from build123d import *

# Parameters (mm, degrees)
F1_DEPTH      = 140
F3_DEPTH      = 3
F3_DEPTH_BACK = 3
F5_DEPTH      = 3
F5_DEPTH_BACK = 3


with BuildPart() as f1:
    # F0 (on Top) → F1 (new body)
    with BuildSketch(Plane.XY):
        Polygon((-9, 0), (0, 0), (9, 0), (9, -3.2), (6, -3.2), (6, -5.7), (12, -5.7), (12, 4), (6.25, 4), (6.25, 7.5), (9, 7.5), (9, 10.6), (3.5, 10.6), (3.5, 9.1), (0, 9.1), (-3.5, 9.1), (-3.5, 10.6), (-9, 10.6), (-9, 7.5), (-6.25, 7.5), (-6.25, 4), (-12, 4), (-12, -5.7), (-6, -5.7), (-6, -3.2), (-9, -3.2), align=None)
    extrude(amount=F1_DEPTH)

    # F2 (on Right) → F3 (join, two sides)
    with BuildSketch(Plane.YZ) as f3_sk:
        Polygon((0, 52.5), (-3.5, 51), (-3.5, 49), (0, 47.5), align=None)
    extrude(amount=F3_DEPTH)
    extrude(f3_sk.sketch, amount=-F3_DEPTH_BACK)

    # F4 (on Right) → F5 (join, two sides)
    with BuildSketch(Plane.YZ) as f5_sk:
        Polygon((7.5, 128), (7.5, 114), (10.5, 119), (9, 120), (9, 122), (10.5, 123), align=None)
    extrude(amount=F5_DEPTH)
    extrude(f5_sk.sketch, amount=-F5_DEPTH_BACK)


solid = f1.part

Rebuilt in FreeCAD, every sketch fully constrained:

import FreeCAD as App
import Part
import Sketcher

V = App.Vector

doc = App.newDocument("Part")
body = doc.addObject("PartDesign::Body", "Body")

# Sketch on XY plane
sketch1 = body.newObject("Sketcher::SketchObject", "Sketch")
sketch1.AttachmentSupport = (doc.getObject("XY_Plane"), [""])
sketch1.MapMode = "FlatFace"
sketch1.addGeometry(Part.LineSegment(V(-9, 0, 0), V(9, 0, 0)), False)
sketch1.addGeometry(Part.LineSegment(V(9, 0, 0), V(9, -3.2, 0)), False)
sketch1.addGeometry(Part.LineSegment(V(9, -3.2, 0), V(6, -3.2, 0)), False)
sketch1.addGeometry(Part.LineSegment(V(6, -3.2, 0), V(6, -5.7, 0)), False)
sketch1.addGeometry(Part.LineSegment(V(6, -5.7, 0), V(12, -5.7, 0)), False)
sketch1.addGeometry(Part.LineSegment(V(12, -5.7, 0), V(12, 4, 0)), False)
sketch1.addGeometry(Part.LineSegment(V(12, 4, 0), V(6.2, 4, 0)), False)
sketch1.addGeometry(Part.LineSegment(V(6.2, 4, 0), V(6.2, 7.5, 0)), False)
sketch1.addGeometry(Part.LineSegment(V(6.2, 7.5, 0), V(9, 7.5, 0)), False)
sketch1.addGeometry(Part.LineSegment(V(9, 7.5, 0), V(9, 10.6, 0)), False)
sketch1.addGeometry(Part.LineSegment(V(9, 10.6, 0), V(3.5, 10.6, 0)), False)
sketch1.addGeometry(Part.LineSegment(V(3.5, 10.6, 0), V(3.5, 9.1, 0)), False)
sketch1.addGeometry(Part.LineSegment(V(3.5, 9.1, 0), V(-3.5, 9.1, 0)), False)
sketch1.addGeometry(Part.LineSegment(V(-3.5, 9.1, 0), V(-3.5, 10.6, 0)), False)
sketch1.addGeometry(Part.LineSegment(V(-3.5, 10.6, 0), V(-9, 10.6, 0)), False)
sketch1.addGeometry(Part.LineSegment(V(-9, 10.6, 0), V(-9, 7.5, 0)), False)
sketch1.addGeometry(Part.LineSegment(V(-9, 7.5, 0), V(-6.2, 7.5, 0)), False)
sketch1.addGeometry(Part.LineSegment(V(-6.2, 7.5, 0), V(-6.2, 4, 0)), False)
sketch1.addGeometry(Part.LineSegment(V(-6.2, 4, 0), V(-12, 4, 0)), False)
sketch1.addGeometry(Part.LineSegment(V(-12, 4, 0), V(-12, -5.7, 0)), False)
sketch1.addGeometry(Part.LineSegment(V(-12, -5.7, 0), V(-6, -5.7, 0)), False)
sketch1.addGeometry(Part.LineSegment(V(-6, -5.7, 0), V(-6, -3.2, 0)), False)
sketch1.addGeometry(Part.LineSegment(V(-6, -3.2, 0), V(-9, -3.2, 0)), False)
sketch1.addGeometry(Part.LineSegment(V(-9, -3.2, 0), V(-9, 0, 0)), False)
sketch1.addConstraint(Sketcher.Constraint("Coincident", 0, 2, 1, 1))
sketch1.addConstraint(Sketcher.Constraint("Coincident", 1, 2, 2, 1))
sketch1.addConstraint(Sketcher.Constraint("Coincident", 2, 2, 3, 1))
sketch1.addConstraint(Sketcher.Constraint("Coincident", 3, 2, 4, 1))
sketch1.addConstraint(Sketcher.Constraint("Coincident", 4, 2, 5, 1))
sketch1.addConstraint(Sketcher.Constraint("Coincident", 5, 2, 6, 1))
sketch1.addConstraint(Sketcher.Constraint("Coincident", 6, 2, 7, 1))
sketch1.addConstraint(Sketcher.Constraint("Coincident", 7, 2, 8, 1))
sketch1.addConstraint(Sketcher.Constraint("Coincident", 8, 2, 9, 1))
sketch1.addConstraint(Sketcher.Constraint("Coincident", 9, 2, 10, 1))
sketch1.addConstraint(Sketcher.Constraint("Coincident", 10, 2, 11, 1))
sketch1.addConstraint(Sketcher.Constraint("Coincident", 11, 2, 12, 1))
sketch1.addConstraint(Sketcher.Constraint("Coincident", 12, 2, 13, 1))
sketch1.addConstraint(Sketcher.Constraint("Coincident", 13, 2, 14, 1))
sketch1.addConstraint(Sketcher.Constraint("Coincident", 14, 2, 15, 1))
sketch1.addConstraint(Sketcher.Constraint("Coincident", 15, 2, 16, 1))
sketch1.addConstraint(Sketcher.Constraint("Coincident", 16, 2, 17, 1))
sketch1.addConstraint(Sketcher.Constraint("Coincident", 17, 2, 18, 1))
sketch1.addConstraint(Sketcher.Constraint("Coincident", 18, 2, 19, 1))
sketch1.addConstraint(Sketcher.Constraint("Coincident", 19, 2, 20, 1))
sketch1.addConstraint(Sketcher.Constraint("Coincident", 20, 2, 21, 1))
sketch1.addConstraint(Sketcher.Constraint("Coincident", 21, 2, 22, 1))
sketch1.addConstraint(Sketcher.Constraint("Coincident", 22, 2, 23, 1))
sketch1.addConstraint(Sketcher.Constraint("Coincident", 23, 2, 0, 1))
sketch1.addConstraint(Sketcher.Constraint("Horizontal", 0))
sketch1.addConstraint(Sketcher.Constraint("Vertical", 1))
sketch1.addConstraint(Sketcher.Constraint("Horizontal", 2))
sketch1.addConstraint(Sketcher.Constraint("Vertical", 3))
sketch1.addConstraint(Sketcher.Constraint("Horizontal", 4))
sketch1.addConstraint(Sketcher.Constraint("Vertical", 5))
sketch1.addConstraint(Sketcher.Constraint("Horizontal", 6))
sketch1.addConstraint(Sketcher.Constraint("Vertical", 7))
sketch1.addConstraint(Sketcher.Constraint("Horizontal", 8))
sketch1.addConstraint(Sketcher.Constraint("Vertical", 9))
sketch1.addConstraint(Sketcher.Constraint("Horizontal", 10))
sketch1.addConstraint(Sketcher.Constraint("Vertical", 11))
sketch1.addConstraint(Sketcher.Constraint("Horizontal", 12))
sketch1.addConstraint(Sketcher.Constraint("Vertical", 13))
sketch1.addConstraint(Sketcher.Constraint("Horizontal", 14))
sketch1.addConstraint(Sketcher.Constraint("Vertical", 15))
sketch1.addConstraint(Sketcher.Constraint("Horizontal", 16))
sketch1.addConstraint(Sketcher.Constraint("Vertical", 17))
sketch1.addConstraint(Sketcher.Constraint("Horizontal", 18))
sketch1.addConstraint(Sketcher.Constraint("Vertical", 19))
sketch1.addConstraint(Sketcher.Constraint("Horizontal", 20))
sketch1.addConstraint(Sketcher.Constraint("Vertical", 21))
sketch1.addConstraint(Sketcher.Constraint("Horizontal", 22))
sketch1.addConstraint(Sketcher.Constraint("Vertical", 23))
sketch1.addConstraint(Sketcher.Constraint("Symmetric", 0, 2, 23, 2, -1, 1))
sketch1.addConstraint(Sketcher.Constraint("Symmetric", 10, 2, 13, 2, -2))
sketch1.addConstraint(Sketcher.Constraint("Symmetric", 8, 2, 15, 2, -2))
sketch1.addConstraint(Sketcher.Constraint("Symmetric", 6, 2, 17, 2, -2))
sketch1.addConstraint(Sketcher.Constraint("Symmetric", 4, 2, 19, 2, -2))
sketch1.addConstraint(Sketcher.Constraint("Symmetric", 2, 2, 21, 2, -2))
sketch1.addConstraint(Sketcher.Constraint("Vertical", 1, 2, 8, 2))
sketch1.addConstraint(Sketcher.Constraint("DistanceX", 0, 1, 0, 2, 18.0))
sketch1.addConstraint(Sketcher.Constraint("DistanceX", 2, 2, 2, 1, 3.0))
sketch1.addConstraint(Sketcher.Constraint("DistanceX", 4, 1, 4, 2, 6.0))
sketch1.addConstraint(Sketcher.Constraint("DistanceX", 12, 2, 12, 1, 7.0))
sketch1.addConstraint(Sketcher.Constraint("DistanceY", 1, 2, 1, 1, 3.2))
sketch1.addConstraint(Sketcher.Constraint("DistanceY", 3, 2, 3, 1, 2.5))
sketch1.addConstraint(Sketcher.Constraint("DistanceY", 5, 1, 5, 2, 9.7))
sketch1.addConstraint(Sketcher.Constraint("DistanceY", 7, 1, 7, 2, 3.5))
sketch1.addConstraint(Sketcher.Constraint("DistanceY", 9, 1, 9, 2, 3.1))
sketch1.addConstraint(Sketcher.Constraint("DistanceY", 11, 2, 11, 1, 1.5))
sketch1.addConstraint(Sketcher.Constraint("DistanceX", 6, 2, 6, 1, 5.75))
pad1 = body.newObject("PartDesign::Pad", "Pad")
pad1.Profile = sketch1
pad1.Length = 140

# Sketch on YZ plane
sketch2 = body.newObject("Sketcher::SketchObject", "Sketch001")
sketch2.AttachmentSupport = (doc.getObject("YZ_Plane"), [""])
sketch2.MapMode = "FlatFace"
sketch2.addGeometry(Part.LineSegment(V(0, 52.5, 0), V(-3.5, 51, 0)), False)
sketch2.addGeometry(Part.LineSegment(V(-3.5, 51, 0), V(-3.5, 49, 0)), False)
sketch2.addGeometry(Part.LineSegment(V(-3.5, 49, 0), V(0, 47.5, 0)), False)
sketch2.addGeometry(Part.LineSegment(V(0, 47.5, 0), V(0, 52.5, 0)), False)
sketch2.addConstraint(Sketcher.Constraint("Coincident", 0, 2, 1, 1))
sketch2.addConstraint(Sketcher.Constraint("Coincident", 1, 2, 2, 1))
sketch2.addConstraint(Sketcher.Constraint("Coincident", 2, 2, 3, 1))
sketch2.addConstraint(Sketcher.Constraint("Coincident", 3, 2, 0, 1))
sketch2.addConstraint(Sketcher.Constraint("Vertical", 1))
sketch2.addConstraint(Sketcher.Constraint("Vertical", 3))
sketch2.addConstraint(Sketcher.Constraint("PointOnObject", 2, 2, -2))
sketch2.addConstraint(Sketcher.Constraint("Equal", 0, 2))
sketch2.addConstraint(Sketcher.Constraint("DistanceY", 1, 2, 1, 1, 2.0))
sketch2.addConstraint(Sketcher.Constraint("DistanceY", 3, 1, 3, 2, 5.0))
sketch2.addConstraint(Sketcher.Constraint("DistanceY", -1, 1, 0, 2, 51.0))
sketch2.addConstraint(Sketcher.Constraint("DistanceX", 0, 2, -1, 1, 3.5))
pad2 = body.newObject("PartDesign::Pad", "Pad001")
pad2.Profile = sketch2
pad2.Type = "TwoLengths"
pad2.Length = 3
pad2.Length2 = 3

# Sketch on YZ plane
sketch3 = body.newObject("Sketcher::SketchObject", "Sketch002")
sketch3.AttachmentSupport = (doc.getObject("YZ_Plane"), [""])
sketch3.MapMode = "FlatFace"
sketch3.addGeometry(Part.LineSegment(V(7.5, 128, 0), V(7.5, 114, 0)), False)
sketch3.addGeometry(Part.LineSegment(V(7.5, 114, 0), V(10.5, 119, 0)), False)
sketch3.addGeometry(Part.LineSegment(V(10.5, 119, 0), V(9, 120, 0)), False)
sketch3.addGeometry(Part.LineSegment(V(9, 120, 0), V(9, 122, 0)), False)
sketch3.addGeometry(Part.LineSegment(V(9, 122, 0), V(10.5, 123, 0)), False)
sketch3.addGeometry(Part.LineSegment(V(10.5, 123, 0), V(7.5, 128, 0)), False)
sketch3.addConstraint(Sketcher.Constraint("Coincident", 0, 2, 1, 1))
sketch3.addConstraint(Sketcher.Constraint("Coincident", 1, 2, 2, 1))
sketch3.addConstraint(Sketcher.Constraint("Coincident", 2, 2, 3, 1))
sketch3.addConstraint(Sketcher.Constraint("Coincident", 3, 2, 4, 1))
sketch3.addConstraint(Sketcher.Constraint("Coincident", 4, 2, 5, 1))
sketch3.addConstraint(Sketcher.Constraint("Coincident", 5, 2, 0, 1))
sketch3.addConstraint(Sketcher.Constraint("Vertical", 0))
sketch3.addConstraint(Sketcher.Constraint("Vertical", 3))
sketch3.addConstraint(Sketcher.Constraint("Vertical", 1, 2, 4, 2))
sketch3.addConstraint(Sketcher.Constraint("Equal", 2, 4))
sketch3.addConstraint(Sketcher.Constraint("Equal", 1, 5))
sketch3.addConstraint(Sketcher.Constraint("DistanceY", 0, 2, 0, 1, 14.0))
sketch3.addConstraint(Sketcher.Constraint("DistanceY", 3, 1, 3, 2, 2.0))
sketch3.addConstraint(Sketcher.Constraint("DistanceY", -1, 1, 0, 2, 114.0))
sketch3.addConstraint(Sketcher.Constraint("DistanceY", -1, 1, 1, 2, 119.0))
sketch3.addConstraint(Sketcher.Constraint("DistanceX", -1, 1, 2, 2, 9.0))
sketch3.addConstraint(Sketcher.Constraint("DistanceX", 0, 2, 1, 2, 3.0))
sketch3.addConstraint(Sketcher.Constraint("DistanceX", -1, 1, 0, 2, 7.5))
pad3 = body.newObject("PartDesign::Pad", "Pad002")
pad3.Profile = sketch3
pad3.Type = "TwoLengths"
pad3.Length = 3
pad3.Length2 = 3

doc.recompute()
